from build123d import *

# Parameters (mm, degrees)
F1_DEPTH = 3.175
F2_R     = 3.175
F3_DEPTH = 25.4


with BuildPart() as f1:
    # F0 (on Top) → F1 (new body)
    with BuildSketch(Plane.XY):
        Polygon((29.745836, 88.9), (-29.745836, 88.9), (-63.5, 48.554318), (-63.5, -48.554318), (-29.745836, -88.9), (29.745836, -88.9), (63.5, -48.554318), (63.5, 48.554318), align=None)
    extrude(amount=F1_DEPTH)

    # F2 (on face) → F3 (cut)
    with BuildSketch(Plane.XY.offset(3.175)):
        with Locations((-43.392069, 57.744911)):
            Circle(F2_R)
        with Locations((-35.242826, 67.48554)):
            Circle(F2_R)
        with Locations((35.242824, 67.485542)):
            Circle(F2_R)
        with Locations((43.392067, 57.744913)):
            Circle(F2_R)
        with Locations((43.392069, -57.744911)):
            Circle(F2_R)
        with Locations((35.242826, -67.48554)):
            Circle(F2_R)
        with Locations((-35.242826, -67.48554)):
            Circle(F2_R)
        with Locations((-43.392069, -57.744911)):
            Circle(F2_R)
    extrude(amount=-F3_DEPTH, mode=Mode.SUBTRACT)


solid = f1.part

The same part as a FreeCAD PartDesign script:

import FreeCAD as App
import Part
import Sketcher

V = App.Vector
Q = App.Units.Quantity


def add_polygon(sketch, points):
    """Adds a closed chain of lines whose ends are joined by coincident constraints."""
    first, n = sketch.GeometryCount, len(points)
    for a, b in zip(points, points[1:] + points[:1]):
        sketch.addGeometry(Part.LineSegment(App.Vector(*a, 0), App.Vector(*b, 0)), False)
    for i in range(n):
        sketch.addConstraint(Sketcher.Constraint("Coincident", first + i, 2, first + (i + 1) % n, 1))

doc = App.newDocument("Part")
body = doc.addObject("PartDesign::Body", "Body")

# Sketch on XY plane
sketch1 = body.newObject("Sketcher::SketchObject", "Sketch")
sketch1.AttachmentSupport = (doc.getObject("XY_Plane"), [""])
sketch1.MapMode = "FlatFace"
add_polygon(sketch1, [(29.745836, 88.9), (-29.745836, 88.9), (-63.5, 48.554318), (-63.5, -48.554318), (-29.745836, -88.9), (29.745836, -88.9), (63.5, -48.554318), (63.5, 48.554318)])  # lines 0-7
sketch1.addConstraint(Sketcher.Constraint("Horizontal", 0))
sketch1.addConstraint(Sketcher.Constraint("Vertical", 2))
sketch1.addConstraint(Sketcher.Constraint("Horizontal", 4))
sketch1.addConstraint(Sketcher.Constraint("Vertical", 6))
sketch1.addConstraint(Sketcher.Constraint("Symmetric", 0, 2, 4, 2, -1, 1))
sketch1.addConstraint(Sketcher.Constraint("Symmetric", 1, 2, 5, 2, -1, 1))
sketch1.addConstraint(Sketcher.Constraint("Parallel", 3, 7))
sketch1.addConstraint(Sketcher.Constraint("Horizontal", 2, 2, 5, 2))
sketch1.addConstraint(Sketcher.Constraint("Horizontal", 1, 2, 6, 2))
sketch1.addConstraint(Sketcher.Constraint("Vertical", 0, 2, 3, 2))
sketch1.addConstraint(Sketcher.Constraint("DistanceY", 3, 2, 0, 2, Q("7 in")))
sketch1.addConstraint(Sketcher.Constraint("DistanceX", 2, 2, 5, 2, Q("5 in")))
sketch1.addConstraint(Sketcher.Constraint("Distance", 1, Q("2.071 in")))
sketch1.addConstraint(Sketcher.Constraint("DistanceX", 0, 2, 0, 1, Q("59.491672 mm")))
pad1 = body.newObject("PartDesign::Pad", "Pad")
pad1.Profile = sketch1
pad1.Length = Q("0.125 in")

# Sketch on XY plane
sketch2 = body.newObject("Sketcher::SketchObject", "Sketch001")
sketch2.AttachmentSupport = (doc.getObject("XY_Plane"), [""])
sketch2.MapMode = "FlatFace"
sketch2.AttachmentOffset = App.Placement(V(0, 0, 0.125 * 25.4), App.Rotation())
sketch2.addGeometry(Part.Circle(V(-43.392069, 57.744911, 0), V(0, 0, 1), 3.175), False)
sketch2.addGeometry(Part.Circle(V(-35.242826, 67.48554, 0), V(0, 0, 1), 3.175), False)
sketch2.addGeometry(Part.Circle(V(35.242824, 67.485542, 0), V(0, 0, 1), 3.175), False)
sketch2.addGeometry(Part.Circle(V(43.392067, 57.744913, 0), V(0, 0, 1), 3.175), False)
sketch2.addGeometry(Part.Circle(V(43.392069, -57.744911, 0), V(0, 0, 1), 3.175), False)
sketch2.addGeometry(Part.Circle(V(35.242826, -67.48554, 0), V(0, 0, 1), 3.175), False)
sketch2.addGeometry(Part.Circle(V(-35.242826, -67.48554, 0), V(0, 0, 1), 3.175), False)
sketch2.addGeometry(Part.Circle(V(-43.392069, -57.744911, 0), V(0, 0, 1), 3.175), False)
sketch2.addConstraint(Sketcher.Constraint("Equal", 0, 1))
sketch2.addConstraint(Sketcher.Constraint("Equal", 1, 2))
sketch2.addConstraint(Sketcher.Constraint("Equal", 2, 3))
sketch2.addConstraint(Sketcher.Constraint("Equal", 3, 4))
sketch2.addConstraint(Sketcher.Constraint("Equal", 4, 5))
sketch2.addConstraint(Sketcher.Constraint("Equal", 5, 6))
sketch2.addConstraint(Sketcher.Constraint("Equal", 6, 7))
sketch2.addConstraint(Sketcher.Constraint("Symmetric", 0, 3, 4, 3, -1, 1))
sketch2.addConstraint(Sketcher.Constraint("Symmetric", 1, 3, 5, 3, -1, 1))
sketch2.addConstraint(Sketcher.Constraint("Symmetric", 2, 3, 6, 3, -1, 1))
sketch2.addConstraint(Sketcher.Constraint("Symmetric", 3, 3, 7, 3, -1, 1))
sketch2.addConstraint(Sketcher.Constraint("Symmetric", 1, 3, 2, 3, -2))
sketch2.addConstraint(Sketcher.Constraint("Symmetric", 0, 3, 3, 3, -2))
sketch2.addConstraint(Sketcher.Constraint("Diameter", 0, Q("0.25 in")))
sketch2.addConstraint(Sketcher.Constraint("DistanceX", 0, 3, -1, 1, Q("43.392069 mm")))
sketch2.addConstraint(Sketcher.Constraint("DistanceY", -1, 1, 0, 3, Q("57.744911 mm")))
sketch2.addConstraint(Sketcher.Constraint("DistanceY", -1, 1, 1, 3, Q("67.48554 mm")))
sketch2.addConstraint(Sketcher.Constraint("DistanceX", 1, 3, 2, 3, Q("70.48565 mm")))
pocket1 = body.newObject("PartDesign::Pocket", "Pocket")
pocket1.Profile = sketch2
pocket1.Length = Q("1 in")

doc.recompute()
